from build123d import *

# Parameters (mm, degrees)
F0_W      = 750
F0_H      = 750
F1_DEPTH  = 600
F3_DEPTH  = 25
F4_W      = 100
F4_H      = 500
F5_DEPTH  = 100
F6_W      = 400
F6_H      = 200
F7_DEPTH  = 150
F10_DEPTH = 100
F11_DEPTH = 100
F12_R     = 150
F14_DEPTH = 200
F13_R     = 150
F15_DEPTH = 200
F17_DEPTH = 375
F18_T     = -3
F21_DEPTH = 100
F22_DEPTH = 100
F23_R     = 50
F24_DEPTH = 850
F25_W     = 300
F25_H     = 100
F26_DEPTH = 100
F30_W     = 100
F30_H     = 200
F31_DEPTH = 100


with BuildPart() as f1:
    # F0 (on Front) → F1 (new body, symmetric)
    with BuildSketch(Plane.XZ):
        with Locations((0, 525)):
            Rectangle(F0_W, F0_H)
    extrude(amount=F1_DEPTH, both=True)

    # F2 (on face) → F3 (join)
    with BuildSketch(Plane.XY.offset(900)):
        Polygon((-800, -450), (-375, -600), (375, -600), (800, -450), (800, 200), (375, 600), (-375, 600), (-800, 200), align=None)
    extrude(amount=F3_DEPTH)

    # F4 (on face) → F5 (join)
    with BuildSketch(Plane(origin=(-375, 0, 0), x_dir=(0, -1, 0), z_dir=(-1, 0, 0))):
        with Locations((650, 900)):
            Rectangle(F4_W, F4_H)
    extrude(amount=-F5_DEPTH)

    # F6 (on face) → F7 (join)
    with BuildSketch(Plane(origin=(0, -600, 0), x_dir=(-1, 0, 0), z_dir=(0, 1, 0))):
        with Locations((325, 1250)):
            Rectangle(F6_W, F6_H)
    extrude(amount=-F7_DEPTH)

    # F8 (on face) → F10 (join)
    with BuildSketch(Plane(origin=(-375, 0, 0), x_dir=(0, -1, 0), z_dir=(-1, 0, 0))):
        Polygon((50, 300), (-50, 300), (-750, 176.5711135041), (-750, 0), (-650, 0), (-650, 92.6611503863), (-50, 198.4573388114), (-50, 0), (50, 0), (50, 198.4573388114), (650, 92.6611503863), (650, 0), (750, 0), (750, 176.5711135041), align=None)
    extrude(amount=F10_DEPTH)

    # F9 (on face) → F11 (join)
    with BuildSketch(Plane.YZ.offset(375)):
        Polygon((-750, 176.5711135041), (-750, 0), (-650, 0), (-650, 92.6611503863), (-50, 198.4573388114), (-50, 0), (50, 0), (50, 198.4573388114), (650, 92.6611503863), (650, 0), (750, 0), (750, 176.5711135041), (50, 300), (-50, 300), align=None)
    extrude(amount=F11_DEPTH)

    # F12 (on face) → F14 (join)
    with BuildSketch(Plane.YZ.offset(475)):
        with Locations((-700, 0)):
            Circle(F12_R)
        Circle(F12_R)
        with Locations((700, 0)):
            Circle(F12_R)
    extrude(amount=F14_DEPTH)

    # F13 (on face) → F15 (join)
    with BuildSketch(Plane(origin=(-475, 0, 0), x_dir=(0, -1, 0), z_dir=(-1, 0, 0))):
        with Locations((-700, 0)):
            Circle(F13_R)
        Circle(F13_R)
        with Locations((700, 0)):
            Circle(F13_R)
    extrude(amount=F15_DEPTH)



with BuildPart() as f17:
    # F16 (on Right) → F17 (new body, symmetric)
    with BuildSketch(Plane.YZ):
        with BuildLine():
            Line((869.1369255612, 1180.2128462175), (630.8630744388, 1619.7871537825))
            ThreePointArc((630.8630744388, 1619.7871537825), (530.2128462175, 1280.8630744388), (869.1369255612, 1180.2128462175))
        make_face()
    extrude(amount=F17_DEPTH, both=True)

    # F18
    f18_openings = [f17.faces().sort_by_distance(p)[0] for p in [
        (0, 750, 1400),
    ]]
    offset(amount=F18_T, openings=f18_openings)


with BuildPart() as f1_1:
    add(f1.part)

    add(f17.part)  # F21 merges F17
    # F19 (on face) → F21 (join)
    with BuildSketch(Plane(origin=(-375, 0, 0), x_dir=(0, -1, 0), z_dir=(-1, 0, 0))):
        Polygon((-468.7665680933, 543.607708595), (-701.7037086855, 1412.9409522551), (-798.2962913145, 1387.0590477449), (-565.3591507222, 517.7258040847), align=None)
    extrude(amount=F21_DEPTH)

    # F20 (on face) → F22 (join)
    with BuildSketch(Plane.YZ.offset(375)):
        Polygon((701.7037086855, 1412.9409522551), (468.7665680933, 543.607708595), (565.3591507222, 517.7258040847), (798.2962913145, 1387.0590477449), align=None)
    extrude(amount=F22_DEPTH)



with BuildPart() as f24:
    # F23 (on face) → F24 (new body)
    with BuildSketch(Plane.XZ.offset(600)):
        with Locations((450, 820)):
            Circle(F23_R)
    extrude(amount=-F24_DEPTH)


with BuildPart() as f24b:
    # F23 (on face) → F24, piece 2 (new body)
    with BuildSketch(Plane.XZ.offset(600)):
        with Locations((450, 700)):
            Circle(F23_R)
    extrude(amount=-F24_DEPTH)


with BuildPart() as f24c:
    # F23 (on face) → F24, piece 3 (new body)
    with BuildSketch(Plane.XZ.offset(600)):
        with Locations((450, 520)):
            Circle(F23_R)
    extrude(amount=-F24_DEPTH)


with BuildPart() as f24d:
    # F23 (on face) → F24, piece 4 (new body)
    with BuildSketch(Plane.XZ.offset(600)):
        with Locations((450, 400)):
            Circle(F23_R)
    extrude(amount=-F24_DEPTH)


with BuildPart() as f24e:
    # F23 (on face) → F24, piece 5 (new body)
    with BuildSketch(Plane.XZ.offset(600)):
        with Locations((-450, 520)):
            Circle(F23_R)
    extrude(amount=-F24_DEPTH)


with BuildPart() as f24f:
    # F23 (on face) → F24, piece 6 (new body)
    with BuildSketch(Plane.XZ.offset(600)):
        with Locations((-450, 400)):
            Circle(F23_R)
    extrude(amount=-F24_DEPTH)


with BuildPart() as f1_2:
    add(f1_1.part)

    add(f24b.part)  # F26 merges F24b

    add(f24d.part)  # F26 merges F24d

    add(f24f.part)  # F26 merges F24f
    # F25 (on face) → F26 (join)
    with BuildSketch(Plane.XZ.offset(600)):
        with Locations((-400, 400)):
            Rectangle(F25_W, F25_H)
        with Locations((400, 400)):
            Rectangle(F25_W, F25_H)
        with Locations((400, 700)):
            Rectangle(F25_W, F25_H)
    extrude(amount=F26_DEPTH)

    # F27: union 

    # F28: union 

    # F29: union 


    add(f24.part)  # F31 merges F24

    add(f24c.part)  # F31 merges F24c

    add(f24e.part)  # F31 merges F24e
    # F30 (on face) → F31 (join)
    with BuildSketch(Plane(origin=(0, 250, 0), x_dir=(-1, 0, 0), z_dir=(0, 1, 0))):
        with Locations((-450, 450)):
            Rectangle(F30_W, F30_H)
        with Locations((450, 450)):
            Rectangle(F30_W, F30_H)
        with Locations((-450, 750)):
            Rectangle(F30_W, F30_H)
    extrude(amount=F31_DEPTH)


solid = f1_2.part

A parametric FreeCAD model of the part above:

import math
import FreeCAD as App
import Part
import Sketcher

V = App.Vector
Q = App.Units.Quantity


def faces_at(feature, points):
    """Names of the faces that lie closest to the given points."""
    faces = feature.Shape.Faces
    near = lambda p: min(range(len(faces)), key=lambda i: faces[i].distToShape(Part.Vertex(*p))[0])
    return sorted({f"Face{near(p) + 1}" for p in points})


def add_polygon(sketch, points):
    """Adds a closed chain of lines whose ends are joined by coincident constraints."""
    first, n = sketch.GeometryCount, len(points)
    for a, b in zip(points, points[1:] + points[:1]):
        sketch.addGeometry(Part.LineSegment(App.Vector(*a, 0), App.Vector(*b, 0)), False)
    for i in range(n):
        sketch.addConstraint(Sketcher.Constraint("Coincident", first + i, 2, first + (i + 1) % n, 1))

doc = App.newDocument("Part")
body = doc.addObject("PartDesign::Body", "Body")

sketch1 = body.newObject("Sketcher::SketchObject", "Sketch")
sketch1.AttachmentSupport = (doc.getObject("XZ_Plane"), [""])
sketch1.MapMode = "FlatFace"
add_polygon(sketch1, [(-375, 900), (-375, 150), (375, 150), (375, 900)])
sketch1.addConstraint(Sketcher.Constraint("Vertical", 0))
sketch1.addConstraint(Sketcher.Constraint("Horizontal", 1))
sketch1.addConstraint(Sketcher.Constraint("Vertical", 2))
sketch1.addConstraint(Sketcher.Constraint("Horizontal", 3))
sketch1.addConstraint(Sketcher.Constraint("Equal", 3, 0))
sketch1.addConstraint(Sketcher.Constraint("DistanceX", 1, 1, 1, 2, 750.0))
sketch1.addConstraint(Sketcher.Constraint("DistanceX", 0, 2, -1, 1, 375.0))
sketch1.addConstraint(Sketcher.Constraint("DistanceY", -1, 1, 0, 2, 150.0))
pad1 = body.newObject("PartDesign::Pad", "Pad")
pad1.Profile = sketch1
pad1.Length = 1200
pad1.Midplane = True

sketch2 = body.newObject("Sketcher::SketchObject", "Sketch001")
sketch2.AttachmentSupport = (doc.getObject("XY_Plane"), [""])
sketch2.MapMode = "FlatFace"
sketch2.AttachmentOffset = App.Placement(V(0, 0, 900), App.Rotation())
add_polygon(sketch2, [(-800, -450), (-375, -600), (375, -600), (800, -450), (800, 200), (375, 600), (-375, 600), (-800, 200)])
sketch2.addConstraint(Sketcher.Constraint("Horizontal", 1))
sketch2.addConstraint(Sketcher.Constraint("Vertical", 3))
sketch2.addConstraint(Sketcher.Constraint("Horizontal", 5))
sketch2.addConstraint(Sketcher.Constraint("Vertical", 7))
sketch2.addConstraint(Sketcher.Constraint("Symmetric", 0, 2, 4, 2, -1, 1))
sketch2.addConstraint(Sketcher.Constraint("Symmetric", 3, 2, 6, 2, -2))
sketch2.addConstraint(Sketcher.Constraint("Horizontal", 2, 2, 7, 2))
sketch2.addConstraint(Sketcher.Constraint("Vertical", 1, 2, 4, 2))
sketch2.addConstraint(Sketcher.Constraint("Vertical", 0, 2, 5, 2))
sketch2.addConstraint(Sketcher.Constraint("DistanceX", 1, 1, 1, 2, 750.0))
sketch2.addConstraint(Sketcher.Constraint("DistanceY", 3, 1, 3, 2, 650.0))
sketch2.addConstraint(Sketcher.Constraint("DistanceY", 0, 2, -1, 1, 600.0))
sketch2.addConstraint(Sketcher.Constraint("DistanceX", -1, 1, 2, 2, 800.0))
sketch2.addConstraint(Sketcher.Constraint("DistanceY", 2, 2, -1, 1, 450.0))
pad2 = body.newObject("PartDesign::Pad", "Pad001")
pad2.Profile = sketch2
pad2.Length = 25

sketch3 = body.newObject("Sketcher::SketchObject", "Sketch002")
sketch3.AttachmentSupport = (doc.getObject("YZ_Plane"), [""])
sketch3.MapMode = "FlatFace"
sketch3.AttachmentOffset = App.Placement(V(0, 0, -375), App.Rotation())
add_polygon(sketch3, [(-600, 1150), (-600, 650), (-700, 650), (-700, 1150)])
sketch3.addConstraint(Sketcher.Constraint("Vertical", 0))
sketch3.addConstraint(Sketcher.Constraint("Horizontal", 1))
sketch3.addConstraint(Sketcher.Constraint("Vertical", 2))
sketch3.addConstraint(Sketcher.Constraint("Horizontal", 3))
sketch3.addConstraint(Sketcher.Constraint("DistanceX", 1, 2, 1, 1, 100.0))
sketch3.addConstraint(Sketcher.Constraint("DistanceY", 0, 2, 0, 1, 500.0))
sketch3.addConstraint(Sketcher.Constraint("DistanceX", 0, 2, -1, 1, 600.0))
sketch3.addConstraint(Sketcher.Constraint("DistanceY", -1, 1, 0, 2, 650.0))
pad3 = body.newObject("PartDesign::Pad", "Pad002")
pad3.Profile = sketch3
pad3.Length = 100

sketch4 = body.newObject("Sketcher::SketchObject", "Sketch003")
sketch4.AttachmentSupport = (doc.getObject("XZ_Plane"), [""])
sketch4.MapMode = "FlatFace"
sketch4.AttachmentOffset = App.Placement(V(0, 0, 600), App.Rotation())
add_polygon(sketch4, [(-125, 1350), (-125, 1150), (-525, 1150), (-525, 1350)])
sketch4.addConstraint(Sketcher.Constraint("Vertical", 0))
sketch4.addConstraint(Sketcher.Constraint("Horizontal", 1))
sketch4.addConstraint(Sketcher.Constraint("Vertical", 2))
sketch4.addConstraint(Sketcher.Constraint("Horizontal", 3))
sketch4.addConstraint(Sketcher.Constraint("DistanceX", 1, 2, 1, 1, 400.0))
sketch4.addConstraint(Sketcher.Constraint("DistanceY", 0, 2, 0, 1, 200.0))
sketch4.addConstraint(Sketcher.Constraint("DistanceX", 0, 2, -1, 1, 125.0))
sketch4.addConstraint(Sketcher.Constraint("DistanceY", -1, 1, 0, 2, 1150.0))
pad4 = body.newObject("PartDesign::Pad", "Pad003")
pad4.Profile = sketch4
pad4.Length = 150

sketch5 = body.newObject("Sketcher::SketchObject", "Sketch004")
sketch5.AttachmentSupport = (doc.getObject("YZ_Plane"), [""])
sketch5.MapMode = "FlatFace"
sketch5.AttachmentOffset = App.Placement(V(0, 0, -375), App.Rotation())
add_polygon(sketch5, [(-50, 300), (50, 300), (750, 177), (750, 0), (650, 0), (650, 93), (50, 198), (50, 0), (-50, 0), (-50, 198), (-650, 93), (-650, 0), (-750, 0), (-750, 177)])
sketch5.addConstraint(Sketcher.Constraint("Horizontal", 0))
sketch5.addConstraint(Sketcher.Constraint("Vertical", 2))
sketch5.addConstraint(Sketcher.Constraint("Horizontal", 3))
sketch5.addConstraint(Sketcher.Constraint("Vertical", 4))
sketch5.addConstraint(Sketcher.Constraint("Vertical", 6))
sketch5.addConstraint(Sketcher.Constraint("Horizontal", 7))
sketch5.addConstraint(Sketcher.Constraint("Vertical", 8))
sketch5.addConstraint(Sketcher.Constraint("Vertical", 10))
sketch5.addConstraint(Sketcher.Constraint("Horizontal", 11))
sketch5.addConstraint(Sketcher.Constraint("Vertical", 12))
sketch5.addConstraint(Sketcher.Constraint("Symmetric", 6, 2, 7, 2, -1, 1))
sketch5.addConstraint(Sketcher.Constraint("Symmetric", 3, 2, 10, 2, -1, 1))
sketch5.addConstraint(Sketcher.Constraint("Symmetric", 2, 2, 11, 2, -2))
sketch5.addConstraint(Sketcher.Constraint("Parallel", 1, 5))
sketch5.addConstraint(Sketcher.Constraint("Parallel", 9, 13))
sketch5.addConstraint(Sketcher.Constraint("Horizontal", 5, 2, 8, 2))
sketch5.addConstraint(Sketcher.Constraint("Horizontal", 4, 2, 9, 2))
sketch5.addConstraint(Sketcher.Constraint("Horizontal", 1, 2, 12, 2))
sketch5.addConstraint(Sketcher.Constraint("Vertical", 0, 2, 5, 2))
sketch5.addConstraint(Sketcher.Constraint("Equal", 0, 3))
sketch5.addConstraint(Sketcher.Constraint("DistanceX", 0, 1, 0, 2, 100.0))
sketch5.addConstraint(Sketcher.Constraint("Angle", 1, Q("-10 deg")))
sketch5.addConstraint(Sketcher.Constraint("DistanceY", -1, 1, 0, 2, 300.0))
sketch5.addConstraint(Sketcher.Constraint("DistanceX", -1, 1, 1, 2, 750.0))
sketch5.addConstraint(Sketcher.Constraint("DistanceY", 4, 1, 4, 2, 92.66115))
pad5 = body.newObject("PartDesign::Pad", "Pad004")
pad5.Profile = sketch5
pad5.Length = 100
pad5.Reversed = True

sketch6 = body.newObject("Sketcher::SketchObject", "Sketch005")
sketch6.AttachmentSupport = (doc.getObject("YZ_Plane"), [""])
sketch6.MapMode = "FlatFace"
sketch6.AttachmentOffset = App.Placement(V(0, 0, 375), App.Rotation())
add_polygon(sketch6, [(-750, 177), (-750, 0), (-650, 0), (-650, 93), (-50, 198), (-50, 0), (50, 0), (50, 198), (650, 93), (650, 0), (750, 0), (750, 177), (50, 300), (-50, 300)])
sketch6.addConstraint(Sketcher.Constraint("Vertical", 0))
sketch6.addConstraint(Sketcher.Constraint("Horizontal", 1))
sketch6.addConstraint(Sketcher.Constraint("Vertical", 2))
sketch6.addConstraint(Sketcher.Constraint("Vertical", 4))
sketch6.addConstraint(Sketcher.Constraint("Horizontal", 5))
sketch6.addConstraint(Sketcher.Constraint("Vertical", 6))
sketch6.addConstraint(Sketcher.Constraint("Vertical", 8))
sketch6.addConstraint(Sketcher.Constraint("Horizontal", 9))
sketch6.addConstraint(Sketcher.Constraint("Vertical", 10))
sketch6.addConstraint(Sketcher.Constraint("Horizontal", 12))
sketch6.addConstraint(Sketcher.Constraint("Symmetric", 4, 2, 5, 2, -1, 1))
sketch6.addConstraint(Sketcher.Constraint("Symmetric", 1, 2, 8, 2, -1, 1))
sketch6.addConstraint(Sketcher.Constraint("Symmetric", 0, 2, 9, 2, -2))
sketch6.addConstraint(Sketcher.Constraint("Parallel", 7, 11))
sketch6.addConstraint(Sketcher.Constraint("Parallel", 3, 13))
sketch6.addConstraint(Sketcher.Constraint("Horizontal", 3, 2, 6, 2))
sketch6.addConstraint(Sketcher.Constraint("Horizontal", 2, 2, 7, 2))
sketch6.addConstraint(Sketcher.Constraint("Horizontal", 10, 2, 13, 2))
sketch6.addConstraint(Sketcher.Constraint("Vertical", 6, 2, 11, 2))
sketch6.addConstraint(Sketcher.Constraint("Equal", 1, 5))
sketch6.addConstraint(Sketcher.Constraint("DistanceX", 1, 1, 1, 2, 100.0))
sketch6.addConstraint(Sketcher.Constraint("Angle", 3, Q("10 deg")))
sketch6.addConstraint(Sketcher.Constraint("DistanceX", 0, 2, -1, 1, 750.0))
sketch6.addConstraint(Sketcher.Constraint("DistanceY", -1, 1, 11, 2, 300.0))
sketch6.addConstraint(Sketcher.Constraint("DistanceY", 2, 1, 2, 2, 92.66115))
pad6 = body.newObject("PartDesign::Pad", "Pad005")
pad6.Profile = sketch6
pad6.Length = 100

sketch7 = body.newObject("Sketcher::SketchObject", "Sketch006")
sketch7.AttachmentSupport = (doc.getObject("YZ_Plane"), [""])
sketch7.MapMode = "FlatFace"
sketch7.AttachmentOffset = App.Placement(V(0, 0, 475), App.Rotation())
sketch7.addGeometry(Part.Circle(V(-700, 0, 0), V(0, 0, 1), 150), False)
sketch7.addGeometry(Part.Circle(V(0, 0, 0), V(0, 0, 1), 150), False)
sketch7.addGeometry(Part.Circle(V(700, 0, 0), V(0, 0, 1), 150), False)
sketch7.addConstraint(Sketcher.Constraint("Coincident", 1, 3, -1, 1))
sketch7.addConstraint(Sketcher.Constraint("Equal", 0, 1))
sketch7.addConstraint(Sketcher.Constraint("Equal", 1, 2))
sketch7.addConstraint(Sketcher.Constraint("Symmetric", 0, 3, 2, 3, -1, 1))
sketch7.addConstraint(Sketcher.Constraint("PointOnObject", 0, 3, -1))
sketch7.addConstraint(Sketcher.Constraint("Diameter", 0, 300.0))
sketch7.addConstraint(Sketcher.Constraint("DistanceX", 0, 3, -1, 1, 700.0))
pad7 = body.newObject("PartDesign::Pad", "Pad006")
pad7.Profile = sketch7
pad7.Length = 200

sketch8 = body.newObject("Sketcher::SketchObject", "Sketch007")
sketch8.AttachmentSupport = (doc.getObject("YZ_Plane"), [""])
sketch8.MapMode = "FlatFace"
sketch8.AttachmentOffset = App.Placement(V(0, 0, -475), App.Rotation())
sketch8.addGeometry(Part.Circle(V(700, 0, 0), V(0, 0, 1), 150), False)
sketch8.addGeometry(Part.Circle(V(0, 0, 0), V(0, 0, 1), 150), False)
sketch8.addGeometry(Part.Circle(V(-700, 0, 0), V(0, 0, 1), 150), False)
sketch8.addConstraint(Sketcher.Constraint("Coincident", 1, 3, -1, 1))
sketch8.addConstraint(Sketcher.Constraint("Equal", 0, 1))
sketch8.addConstraint(Sketcher.Constraint("Equal", 1, 2))
sketch8.addConstraint(Sketcher.Constraint("Symmetric", 0, 3, 2, 3, -1, 1))
sketch8.addConstraint(Sketcher.Constraint("PointOnObject", 0, 3, -1))
sketch8.addConstraint(Sketcher.Constraint("Diameter", 0, 300.0))
sketch8.addConstraint(Sketcher.Constraint("DistanceX", -1, 1, 0, 3, 700.0))
pad8 = body.newObject("PartDesign::Pad", "Pad007")
pad8.Profile = sketch8
pad8.Length = 200
pad8.Reversed = True
body2 = doc.addObject("PartDesign::Body", "Body001")

sketch9 = body2.newObject("Sketcher::SketchObject", "Sketch008")
sketch9.AttachmentSupport = (doc.getObject("YZ_Plane001"), [""])
sketch9.MapMode = "FlatFace"
sketch9.addGeometry(Part.LineSegment(V(869, 1180, 0), V(631, 1620, 0)), False)
sketch9.addGeometry(Part.ArcOfCircle(Part.Circle(V(750, 1400, 0), V(0, 0, 1), 250), math.radians(118), math.radians(298)), False)
sketch9.addConstraint(Sketcher.Constraint("Coincident", 0, 1, 1, 2))
sketch9.addConstraint(Sketcher.Constraint("Coincident", 1, 1, 0, 2))
sketch9.addConstraint(Sketcher.Constraint("Radius", 1, 250.0))
sketch9.addConstraint(Sketcher.Constraint("DistanceX", -1, 1, 1, 3, 750.0))
sketch9.addConstraint(Sketcher.Constraint("DistanceY", -1, 1, 1, 3, 1400.0))
sketch9.addConstraint(Sketcher.Constraint("DistanceX", 1, 1, 0, 1, 238.273851))
sketch9.addConstraint(Sketcher.Constraint("DistanceX", -1, 1, 0, 1, 869.136926))
pad9 = body2.newObject("PartDesign::Pad", "Pad008")
pad9.Profile = sketch9
pad9.Length = 750
pad9.Midplane = True
doc.recompute()

thickness = body2.newObject("PartDesign::Thickness", "Thickness")
thickness.Base = (pad9, faces_at(pad9, [(0, 750, 1400)]))
thickness.Value = 3
thickness.Reversed = True
thickness.Join = "Arc"
body.AllowCompound = True
doc.recompute()

boolean = body.newObject("PartDesign::Boolean", "Boolean")
boolean.Type = "Fuse"
boolean.addObjects([body2])

sketch10 = body.newObject("Sketcher::SketchObject", "Sketch009")
sketch10.AttachmentSupport = (doc.getObject("YZ_Plane"), [""])
sketch10.MapMode = "FlatFace"
sketch10.AttachmentOffset = App.Placement(V(0, 0, -375), App.Rotation())
add_polygon(sketch10, [(469, 544), (702, 1413), (798, 1387), (565, 518)])
sketch10.addConstraint(Sketcher.Constraint("Perpendicular", 0, 1))
sketch10.addConstraint(Sketcher.Constraint("Perpendicular", 1, 2))
sketch10.addConstraint(Sketcher.Constraint("Perpendicular", 2, 3))
sketch10.addConstraint(Sketcher.Constraint("Angle", 0, Q("75 deg")))
sketch10.addConstraint(Sketcher.Constraint("Distance", 0, 900.0))
sketch10.addConstraint(Sketcher.Constraint("Distance", 1, 100.0))
sketch10.addConstraint(Sketcher.Constraint("DistanceX", -1, 1, 0, 2, 701.703709))
sketch10.addConstraint(Sketcher.Constraint("DistanceY", -1, 1, 3, 2, 543.607709))
pad10 = body.newObject("PartDesign::Pad", "Pad009")
pad10.Profile = sketch10
pad10.Length = 100
pad10.Reversed = True

sketch11 = body.newObject("Sketcher::SketchObject", "Sketch010")
sketch11.AttachmentSupport = (doc.getObject("YZ_Plane"), [""])
sketch11.MapMode = "FlatFace"
sketch11.AttachmentOffset = App.Placement(V(0, 0, 375), App.Rotation())
add_polygon(sketch11, [(702, 1413), (469, 544), (565, 518), (798, 1387)])
sketch11.addConstraint(Sketcher.Constraint("Perpendicular", 0, 1))
sketch11.addConstraint(Sketcher.Constraint("Perpendicular", 1, 2))
sketch11.addConstraint(Sketcher.Constraint("Perpendicular", 2, 3))
sketch11.addConstraint(Sketcher.Constraint("Angle", 0, Q("-105 deg")))
sketch11.addConstraint(Sketcher.Constraint("Distance", 0, 900.0))
sketch11.addConstraint(Sketcher.Constraint("Distance", 1, 100.0))
sketch11.addConstraint(Sketcher.Constraint("DistanceX", -1, 1, 0, 2, 468.766568))
sketch11.addConstraint(Sketcher.Constraint("DistanceY", -1, 1, 0, 2, 543.607709))
pad11 = body.newObject("PartDesign::Pad", "Pad010")
pad11.Profile = sketch11
pad11.Length = 100
body3 = doc.addObject("PartDesign::Body", "Body002")

sketch12 = body3.newObject("Sketcher::SketchObject", "Sketch011")
sketch12.AttachmentSupport = (doc.getObject("XZ_Plane002"), [""])
sketch12.MapMode = "FlatFace"
sketch12.AttachmentOffset = App.Placement(V(0, 0, 600), App.Rotation())
sketch12.addGeometry(Part.Circle(V(450, 820, 0), V(0, 0, 1), 50), False)
sketch12.addConstraint(Sketcher.Constraint("Diameter", 0, 100.0))
sketch12.addConstraint(Sketcher.Constraint("DistanceX", -1, 1, 0, 3, 450.0))
sketch12.addConstraint(Sketcher.Constraint("DistanceY", -1, 1, 0, 3, 820.0))
pad12 = body3.newObject("PartDesign::Pad", "Pad011")
pad12.Profile = sketch12
pad12.Length = 850
pad12.Reversed = True
body4 = doc.addObject("PartDesign::Body", "Body003")

sketch13 = body4.newObject("Sketcher::SketchObject", "Sketch012")
sketch13.AttachmentSupport = (doc.getObject("XZ_Plane003"), [""])
sketch13.MapMode = "FlatFace"
sketch13.AttachmentOffset = App.Placement(V(0, 0, 600), App.Rotation())
sketch13.addGeometry(Part.Circle(V(450, 700, 0), V(0, 0, 1), 50), False)
sketch13.addConstraint(Sketcher.Constraint("Diameter", 0, 100.0))
sketch13.addConstraint(Sketcher.Constraint("DistanceX", -1, 1, 0, 3, 450.0))
sketch13.addConstraint(Sketcher.Constraint("DistanceY", -1, 1, 0, 3, 700.0))
pad13 = body4.newObject("PartDesign::Pad", "Pad012")
pad13.Profile = sketch13
pad13.Length = 850
pad13.Reversed = True
body5 = doc.addObject("PartDesign::Body", "Body004")

sketch14 = body5.newObject("Sketcher::SketchObject", "Sketch013")
sketch14.AttachmentSupport = (doc.getObject("XZ_Plane004"), [""])
sketch14.MapMode = "FlatFace"
sketch14.AttachmentOffset = App.Placement(V(0, 0, 600), App.Rotation())
sketch14.addGeometry(Part.Circle(V(450, 520, 0), V(0, 0, 1), 50), False)
sketch14.addConstraint(Sketcher.Constraint("Diameter", 0, 100.0))
sketch14.addConstraint(Sketcher.Constraint("DistanceX", -1, 1, 0, 3, 450.0))
sketch14.addConstraint(Sketcher.Constraint("DistanceY", -1, 1, 0, 3, 520.0))
pad14 = body5.newObject("PartDesign::Pad", "Pad013")
pad14.Profile = sketch14
pad14.Length = 850
pad14.Reversed = True
body6 = doc.addObject("PartDesign::Body", "Body005")

sketch15 = body6.newObject("Sketcher::SketchObject", "Sketch014")
sketch15.AttachmentSupport = (doc.getObject("XZ_Plane005"), [""])
sketch15.MapMode = "FlatFace"
sketch15.AttachmentOffset = App.Placement(V(0, 0, 600), App.Rotation())
sketch15.addGeometry(Part.Circle(V(450, 400, 0), V(0, 0, 1), 50), False)
sketch15.addConstraint(Sketcher.Constraint("Diameter", 0, 100.0))
sketch15.addConstraint(Sketcher.Constraint("DistanceX", -1, 1, 0, 3, 450.0))
sketch15.addConstraint(Sketcher.Constraint("DistanceY", -1, 1, 0, 3, 400.0))
pad15 = body6.newObject("PartDesign::Pad", "Pad014")
pad15.Profile = sketch15
pad15.Length = 850
pad15.Reversed = True
body7 = doc.addObject("PartDesign::Body", "Body006")

sketch16 = body7.newObject("Sketcher::SketchObject", "Sketch015")
sketch16.AttachmentSupport = (doc.getObject("XZ_Plane006"), [""])
sketch16.MapMode = "FlatFace"
sketch16.AttachmentOffset = App.Placement(V(0, 0, 600), App.Rotation())
sketch16.addGeometry(Part.Circle(V(-450, 520, 0), V(0, 0, 1), 50), False)
sketch16.addConstraint(Sketcher.Constraint("Diameter", 0, 100.0))
sketch16.addConstraint(Sketcher.Constraint("DistanceX", 0, 3, -1, 1, 450.0))
sketch16.addConstraint(Sketcher.Constraint("DistanceY", -1, 1, 0, 3, 520.0))
pad16 = body7.newObject("PartDesign::Pad", "Pad015")
pad16.Profile = sketch16
pad16.Length = 850
pad16.Reversed = True
body8 = doc.addObject("PartDesign::Body", "Body007")

sketch17 = body8.newObject("Sketcher::SketchObject", "Sketch016")
sketch17.AttachmentSupport = (doc.getObject("XZ_Plane007"), [""])
sketch17.MapMode = "FlatFace"
sketch17.AttachmentOffset = App.Placement(V(0, 0, 600), App.Rotation())
sketch17.addGeometry(Part.Circle(V(-450, 400, 0), V(0, 0, 1), 50), False)
sketch17.addConstraint(Sketcher.Constraint("Diameter", 0, 100.0))
sketch17.addConstraint(Sketcher.Constraint("DistanceX", 0, 3, -1, 1, 450.0))
sketch17.addConstraint(Sketcher.Constraint("DistanceY", -1, 1, 0, 3, 400.0))
pad17 = body8.newObject("PartDesign::Pad", "Pad016")
pad17.Profile = sketch17
pad17.Length = 850
pad17.Reversed = True
body.AllowCompound = True
doc.recompute()

boolean2 = body.newObject("PartDesign::Boolean", "Boolean001")
boolean2.Type = "Fuse"
boolean2.addObjects([body4])
doc.recompute()

boolean3 = body.newObject("PartDesign::Boolean", "Boolean002")
boolean3.Type = "Fuse"
boolean3.addObjects([body6])
doc.recompute()

boolean4 = body.newObject("PartDesign::Boolean", "Boolean003")
boolean4.Type = "Fuse"
boolean4.addObjects([body8])

sketch18 = body.newObject("Sketcher::SketchObject", "Sketch017")
sketch18.AttachmentSupport = (doc.getObject("XZ_Plane"), [""])
sketch18.MapMode = "FlatFace"
sketch18.AttachmentOffset = App.Placement(V(0, 0, 600), App.Rotation())
add_polygon(sketch18, [(-550, 450), (-550, 350), (-250, 350), (-250, 450)])
add_polygon(sketch18, [(250, 450), (250, 350), (550, 350), (550, 450)])
add_polygon(sketch18, [(250, 750), (250, 650), (550, 650), (550, 750)])
sketch18.addConstraint(Sketcher.Constraint("Vertical", 0))
sketch18.addConstraint(Sketcher.Constraint("Horizontal", 1))
sketch18.addConstraint(Sketcher.Constraint("Vertical", 2))
sketch18.addConstraint(Sketcher.Constraint("Horizontal", 3))
sketch18.addConstraint(Sketcher.Constraint("Vertical", 4))
sketch18.addConstraint(Sketcher.Constraint("Horizontal", 5))
sketch18.addConstraint(Sketcher.Constraint("Vertical", 6))
sketch18.addConstraint(Sketcher.Constraint("Horizontal", 7))
sketch18.addConstraint(Sketcher.Constraint("Vertical", 8))
sketch18.addConstraint(Sketcher.Constraint("Horizontal", 9))
sketch18.addConstraint(Sketcher.Constraint("Vertical", 10))
sketch18.addConstraint(Sketcher.Constraint("Horizontal", 11))
sketch18.addConstraint(Sketcher.Constraint("Symmetric", 1, 2, 4, 2, -2))
sketch18.addConstraint(Sketcher.Constraint("Symmetric", 3, 2, 6, 2, -2))
sketch18.addConstraint(Sketcher.Constraint("Vertical", 7, 2, 8, 2))
sketch18.addConstraint(Sketcher.Constraint("Vertical", 6, 2, 9, 2))
sketch18.addConstraint(Sketcher.Constraint("Equal", 6, 8))
sketch18.addConstraint(Sketcher.Constraint("DistanceX", 1, 1, 1, 2, 300.0))
sketch18.addConstraint(Sketcher.Constraint("DistanceY", 0, 2, 0, 1, 100.0))
sketch18.addConstraint(Sketcher.Constraint("DistanceX", 0, 2, -1, 1, 550.0))
sketch18.addConstraint(Sketcher.Constraint("DistanceY", -1, 1, 0, 2, 350.0))
sketch18.addConstraint(Sketcher.Constraint("DistanceY", -1, 1, 8, 2, 650.0))
pad18 = body.newObject("PartDesign::Pad", "Pad017")
pad18.Profile = sketch18
pad18.Length = 100
doc.recompute()

boolean5 = body.newObject("PartDesign::Boolean", "Boolean004")
boolean5.Type = "Fuse"
boolean5.addObjects([body3])
doc.recompute()

boolean6 = body.newObject("PartDesign::Boolean", "Boolean005")
boolean6.Type = "Fuse"
boolean6.addObjects([body5])
doc.recompute()

boolean7 = body.newObject("PartDesign::Boolean", "Boolean006")
boolean7.Type = "Fuse"
boolean7.addObjects([body7])

sketch19 = body.newObject("Sketcher::SketchObject", "Sketch018")
sketch19.AttachmentSupport = (doc.getObject("XZ_Plane"), [""])
sketch19.MapMode = "FlatFace"
sketch19.AttachmentOffset = App.Placement(V(0, 0, -250), App.Rotation())
add_polygon(sketch19, [(500, 550), (500, 350), (400, 350), (400, 550)])
add_polygon(sketch19, [(-400, 550), (-400, 350), (-500, 350), (-500, 550)])
add_polygon(sketch19, [(500, 850), (500, 650), (400, 650), (400, 850)])
sketch19.addConstraint(Sketcher.Constraint("Vertical", 0))
sketch19.addConstraint(Sketcher.Constraint("Horizontal", 1))
sketch19.addConstraint(Sketcher.Constraint("Vertical", 2))
sketch19.addConstraint(Sketcher.Constraint("Horizontal", 3))
sketch19.addConstraint(Sketcher.Constraint("Vertical", 4))
sketch19.addConstraint(Sketcher.Constraint("Horizontal", 5))
sketch19.addConstraint(Sketcher.Constraint("Vertical", 6))
sketch19.addConstraint(Sketcher.Constraint("Horizontal", 7))
sketch19.addConstraint(Sketcher.Constraint("Vertical", 8))
sketch19.addConstraint(Sketcher.Constraint("Horizontal", 9))
sketch19.addConstraint(Sketcher.Constraint("Vertical", 10))
sketch19.addConstraint(Sketcher.Constraint("Horizontal", 11))
sketch19.addConstraint(Sketcher.Constraint("Symmetric", 1, 2, 4, 2, -2))
sketch19.addConstraint(Sketcher.Constraint("Symmetric", 3, 2, 6, 2, -2))
sketch19.addConstraint(Sketcher.Constraint("Vertical", 3, 2, 8, 2))
sketch19.addConstraint(Sketcher.Constraint("Vertical", 2, 2, 9, 2))
sketch19.addConstraint(Sketcher.Constraint("Equal", 6, 8))
sketch19.addConstraint(Sketcher.Constraint("DistanceX", 1, 2, 1, 1, 100.0))
sketch19.addConstraint(Sketcher.Constraint("DistanceY", 0, 2, 0, 1, 200.0))
sketch19.addConstraint(Sketcher.Constraint("DistanceX", -1, 1, 0, 2, 500.0))
sketch19.addConstraint(Sketcher.Constraint("DistanceY", -1, 1, 0, 2, 350.0))
sketch19.addConstraint(Sketcher.Constraint("DistanceY", -1, 1, 8, 2, 650.0))
pad19 = body.newObject("PartDesign::Pad", "Pad018")
pad19.Profile = sketch19
pad19.Length = 100
pad19.Reversed = True

doc.recompute()
